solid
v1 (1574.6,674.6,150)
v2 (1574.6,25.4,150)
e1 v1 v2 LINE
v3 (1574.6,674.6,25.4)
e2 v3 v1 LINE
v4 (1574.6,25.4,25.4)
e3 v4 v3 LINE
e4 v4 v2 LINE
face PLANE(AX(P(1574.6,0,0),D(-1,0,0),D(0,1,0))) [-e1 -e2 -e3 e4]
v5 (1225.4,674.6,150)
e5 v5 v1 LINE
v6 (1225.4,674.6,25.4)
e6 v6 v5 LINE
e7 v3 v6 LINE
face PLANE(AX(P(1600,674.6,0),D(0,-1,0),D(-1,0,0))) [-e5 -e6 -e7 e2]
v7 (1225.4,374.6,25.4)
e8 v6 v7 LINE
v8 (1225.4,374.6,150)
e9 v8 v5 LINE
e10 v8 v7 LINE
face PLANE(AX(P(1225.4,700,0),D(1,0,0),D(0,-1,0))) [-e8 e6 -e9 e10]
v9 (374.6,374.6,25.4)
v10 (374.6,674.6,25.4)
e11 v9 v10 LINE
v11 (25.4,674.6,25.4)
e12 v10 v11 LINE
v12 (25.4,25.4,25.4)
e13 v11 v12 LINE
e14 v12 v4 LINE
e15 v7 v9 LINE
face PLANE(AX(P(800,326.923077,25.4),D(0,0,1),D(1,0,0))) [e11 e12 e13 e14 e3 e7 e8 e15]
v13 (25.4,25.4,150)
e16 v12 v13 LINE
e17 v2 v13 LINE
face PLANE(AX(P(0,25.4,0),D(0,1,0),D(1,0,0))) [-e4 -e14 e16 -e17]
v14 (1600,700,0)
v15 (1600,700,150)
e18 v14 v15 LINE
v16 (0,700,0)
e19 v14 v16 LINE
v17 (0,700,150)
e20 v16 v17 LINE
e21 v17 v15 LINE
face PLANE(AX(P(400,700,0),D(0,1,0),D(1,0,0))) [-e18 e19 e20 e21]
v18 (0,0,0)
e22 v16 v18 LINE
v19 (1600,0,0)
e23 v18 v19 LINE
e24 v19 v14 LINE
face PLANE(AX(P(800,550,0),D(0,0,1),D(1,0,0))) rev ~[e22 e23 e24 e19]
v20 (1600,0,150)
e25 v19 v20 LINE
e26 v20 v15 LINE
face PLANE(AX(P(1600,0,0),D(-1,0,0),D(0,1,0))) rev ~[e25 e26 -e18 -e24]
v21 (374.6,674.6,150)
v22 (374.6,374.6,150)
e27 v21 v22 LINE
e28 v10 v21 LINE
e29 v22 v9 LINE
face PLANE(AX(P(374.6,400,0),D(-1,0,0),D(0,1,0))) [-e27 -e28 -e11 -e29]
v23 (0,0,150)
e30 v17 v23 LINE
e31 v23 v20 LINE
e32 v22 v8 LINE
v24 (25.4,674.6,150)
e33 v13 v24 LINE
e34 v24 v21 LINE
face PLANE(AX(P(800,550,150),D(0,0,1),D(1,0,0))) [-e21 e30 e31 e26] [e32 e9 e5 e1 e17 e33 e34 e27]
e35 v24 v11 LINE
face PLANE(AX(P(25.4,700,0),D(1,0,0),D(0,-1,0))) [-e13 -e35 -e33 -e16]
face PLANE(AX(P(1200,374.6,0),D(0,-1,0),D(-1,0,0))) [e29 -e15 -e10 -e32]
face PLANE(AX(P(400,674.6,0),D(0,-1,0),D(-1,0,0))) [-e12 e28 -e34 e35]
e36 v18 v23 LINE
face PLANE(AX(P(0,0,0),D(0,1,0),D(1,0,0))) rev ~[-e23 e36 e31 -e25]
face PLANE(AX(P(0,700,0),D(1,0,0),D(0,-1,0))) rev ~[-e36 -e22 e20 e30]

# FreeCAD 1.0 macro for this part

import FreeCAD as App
import Part
import Sketcher
from FreeCAD import Vector
Q = App.Units.Quantity


def faces_at(feature, points):
    """Names of the faces that lie closest to the given points."""
    faces = feature.Shape.Faces
    near = lambda p: min(range(len(faces)), key=lambda i: faces[i].distToShape(Part.Vertex(*p))[0])
    return sorted({f"Face{near(p) + 1}" for p in points})


def add_polygon(sketch, points):
    """Adds a closed chain of lines whose ends are joined by coincident constraints."""
    first, n = sketch.GeometryCount, len(points)
    for a, b in zip(points, points[1:] + points[:1]):
        sketch.addGeometry(Part.LineSegment(App.Vector(*a, 0), App.Vector(*b, 0)), False)
    for i in range(n):
        sketch.addConstraint(Sketcher.Constraint("Coincident", first + i, 2, first + (i + 1) % n, 1))

doc = App.newDocument("Part")
body = doc.addObject("PartDesign::Body", "Body")

# Sketch on XY plane
sketch1 = body.newObject("Sketcher::SketchObject", "Sketch")
sketch1.AttachmentSupport = (doc.getObject("XY_Plane"), [""])
sketch1.MapMode = "FlatFace"
add_polygon(sketch1, [(0, 700), (0, 0), (1600, 0), (1600, 700), (1200, 700), (1200, 400), (400, 400), (400, 700)])  # lines 0-7
sketch1.addConstraint([
    Sketcher.Constraint("Vertical", 0),
    Sketcher.Constraint("Horizontal", 1),
    Sketcher.Constraint("Vertical", 2),
    Sketcher.Constraint("Horizontal", 3),
    Sketcher.Constraint("Vertical", 4),
    Sketcher.Constraint("Horizontal", 5),
    Sketcher.Constraint("Vertical", 6),
    Sketcher.Constraint("Horizontal", 7),
    Sketcher.Constraint("Coincident", 0, 2, -1, 1),
    Sketcher.Constraint("Horizontal", 3, 2, 6, 2),
    Sketcher.Constraint("Equal", 3, 7),
    Sketcher.Constraint("DistanceX", 1, 1, 1, 2, Q("1600 mm")),
    Sketcher.Constraint("DistanceX", 3, 2, 3, 1, Q("400 mm")),
    Sketcher.Constraint("DistanceY", 0, 2, 0, 1, Q("700 mm")),
    Sketcher.Constraint("DistanceY", 4, 2, 4, 1, Q("300 mm")),
])
pad1 = body.newObject("PartDesign::Pad", "Pad")
pad1.Profile = sketch1
pad1.Length = 150
doc.recompute()

thickness = body.newObject("PartDesign::Thickness", "Thickness")
thickness.Base = (pad1, faces_at(pad1, [(800, 350, 150)]))
thickness.Value = 25.4
thickness.Reversed = True
thickness.Join = "Intersection"

# Sketch on XY plane
sketch2 = body.newObject("Sketcher::SketchObject", "Sketch001")
sketch2.AttachmentSupport = (doc.getObject("XY_Plane"), [""])
sketch2.MapMode = "FlatFace"
add_polygon(sketch2, [(400, 700), (400, 400), (1200, 400), (1200, 700)])  # lines 0-3
sketch2.addConstraint([
    Sketcher.Constraint("Vertical", 0),
    Sketcher.Constraint("Horizontal", 1),
    Sketcher.Constraint("Vertical", 2),
    Sketcher.Constraint("Horizontal", 3),
    Sketcher.Constraint("DistanceX", 1, 1, 1, 2, Q("800 mm")),
    Sketcher.Constraint("DistanceY", 0, 2, 0, 1, Q("300 mm")),
    Sketcher.Constraint("DistanceX", -1, 1, 0, 2, Q("400 mm")),
    Sketcher.Constraint("DistanceY", -1, 1, 0, 2, Q("400 mm")),
])
pad2 = body.newObject("PartDesign::Pad", "Pad001")
pad2.Profile = sketch2
pad2.Length = 150

doc.recompute()
